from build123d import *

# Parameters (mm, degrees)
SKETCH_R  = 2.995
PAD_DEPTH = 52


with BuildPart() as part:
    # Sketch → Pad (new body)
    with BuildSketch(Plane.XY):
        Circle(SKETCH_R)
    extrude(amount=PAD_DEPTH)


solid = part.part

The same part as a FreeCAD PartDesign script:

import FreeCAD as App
import Part
import Sketcher
from FreeCAD import Vector
Q = App.Units.Quantity

doc = App.newDocument("Part")
body = doc.addObject("PartDesign::Body", "Body")

sketch1 = doc.addObject("Sketcher::SketchObject", "Sketch")
body.addObject(sketch1)
sketch1.AttachmentSupport = (doc.XY_Plane, [""])
sketch1.MapMode = "FlatFace"
sketch1.addGeometry(Part.Circle(Vector(0, 0, 0), Vector(0, 0, 1), 3), False)
sketch1.addConstraint([
    Sketcher.Constraint("Coincident", 0, 3, -1, 1),
    Sketcher.Constraint("Diameter", 0, Q("5.99 mm")),
])
pad1 = doc.addObject("PartDesign::Pad", "Pad")
body.addObject(pad1)
pad1.Profile = sketch1
pad1.Length = 52

doc.recompute()
